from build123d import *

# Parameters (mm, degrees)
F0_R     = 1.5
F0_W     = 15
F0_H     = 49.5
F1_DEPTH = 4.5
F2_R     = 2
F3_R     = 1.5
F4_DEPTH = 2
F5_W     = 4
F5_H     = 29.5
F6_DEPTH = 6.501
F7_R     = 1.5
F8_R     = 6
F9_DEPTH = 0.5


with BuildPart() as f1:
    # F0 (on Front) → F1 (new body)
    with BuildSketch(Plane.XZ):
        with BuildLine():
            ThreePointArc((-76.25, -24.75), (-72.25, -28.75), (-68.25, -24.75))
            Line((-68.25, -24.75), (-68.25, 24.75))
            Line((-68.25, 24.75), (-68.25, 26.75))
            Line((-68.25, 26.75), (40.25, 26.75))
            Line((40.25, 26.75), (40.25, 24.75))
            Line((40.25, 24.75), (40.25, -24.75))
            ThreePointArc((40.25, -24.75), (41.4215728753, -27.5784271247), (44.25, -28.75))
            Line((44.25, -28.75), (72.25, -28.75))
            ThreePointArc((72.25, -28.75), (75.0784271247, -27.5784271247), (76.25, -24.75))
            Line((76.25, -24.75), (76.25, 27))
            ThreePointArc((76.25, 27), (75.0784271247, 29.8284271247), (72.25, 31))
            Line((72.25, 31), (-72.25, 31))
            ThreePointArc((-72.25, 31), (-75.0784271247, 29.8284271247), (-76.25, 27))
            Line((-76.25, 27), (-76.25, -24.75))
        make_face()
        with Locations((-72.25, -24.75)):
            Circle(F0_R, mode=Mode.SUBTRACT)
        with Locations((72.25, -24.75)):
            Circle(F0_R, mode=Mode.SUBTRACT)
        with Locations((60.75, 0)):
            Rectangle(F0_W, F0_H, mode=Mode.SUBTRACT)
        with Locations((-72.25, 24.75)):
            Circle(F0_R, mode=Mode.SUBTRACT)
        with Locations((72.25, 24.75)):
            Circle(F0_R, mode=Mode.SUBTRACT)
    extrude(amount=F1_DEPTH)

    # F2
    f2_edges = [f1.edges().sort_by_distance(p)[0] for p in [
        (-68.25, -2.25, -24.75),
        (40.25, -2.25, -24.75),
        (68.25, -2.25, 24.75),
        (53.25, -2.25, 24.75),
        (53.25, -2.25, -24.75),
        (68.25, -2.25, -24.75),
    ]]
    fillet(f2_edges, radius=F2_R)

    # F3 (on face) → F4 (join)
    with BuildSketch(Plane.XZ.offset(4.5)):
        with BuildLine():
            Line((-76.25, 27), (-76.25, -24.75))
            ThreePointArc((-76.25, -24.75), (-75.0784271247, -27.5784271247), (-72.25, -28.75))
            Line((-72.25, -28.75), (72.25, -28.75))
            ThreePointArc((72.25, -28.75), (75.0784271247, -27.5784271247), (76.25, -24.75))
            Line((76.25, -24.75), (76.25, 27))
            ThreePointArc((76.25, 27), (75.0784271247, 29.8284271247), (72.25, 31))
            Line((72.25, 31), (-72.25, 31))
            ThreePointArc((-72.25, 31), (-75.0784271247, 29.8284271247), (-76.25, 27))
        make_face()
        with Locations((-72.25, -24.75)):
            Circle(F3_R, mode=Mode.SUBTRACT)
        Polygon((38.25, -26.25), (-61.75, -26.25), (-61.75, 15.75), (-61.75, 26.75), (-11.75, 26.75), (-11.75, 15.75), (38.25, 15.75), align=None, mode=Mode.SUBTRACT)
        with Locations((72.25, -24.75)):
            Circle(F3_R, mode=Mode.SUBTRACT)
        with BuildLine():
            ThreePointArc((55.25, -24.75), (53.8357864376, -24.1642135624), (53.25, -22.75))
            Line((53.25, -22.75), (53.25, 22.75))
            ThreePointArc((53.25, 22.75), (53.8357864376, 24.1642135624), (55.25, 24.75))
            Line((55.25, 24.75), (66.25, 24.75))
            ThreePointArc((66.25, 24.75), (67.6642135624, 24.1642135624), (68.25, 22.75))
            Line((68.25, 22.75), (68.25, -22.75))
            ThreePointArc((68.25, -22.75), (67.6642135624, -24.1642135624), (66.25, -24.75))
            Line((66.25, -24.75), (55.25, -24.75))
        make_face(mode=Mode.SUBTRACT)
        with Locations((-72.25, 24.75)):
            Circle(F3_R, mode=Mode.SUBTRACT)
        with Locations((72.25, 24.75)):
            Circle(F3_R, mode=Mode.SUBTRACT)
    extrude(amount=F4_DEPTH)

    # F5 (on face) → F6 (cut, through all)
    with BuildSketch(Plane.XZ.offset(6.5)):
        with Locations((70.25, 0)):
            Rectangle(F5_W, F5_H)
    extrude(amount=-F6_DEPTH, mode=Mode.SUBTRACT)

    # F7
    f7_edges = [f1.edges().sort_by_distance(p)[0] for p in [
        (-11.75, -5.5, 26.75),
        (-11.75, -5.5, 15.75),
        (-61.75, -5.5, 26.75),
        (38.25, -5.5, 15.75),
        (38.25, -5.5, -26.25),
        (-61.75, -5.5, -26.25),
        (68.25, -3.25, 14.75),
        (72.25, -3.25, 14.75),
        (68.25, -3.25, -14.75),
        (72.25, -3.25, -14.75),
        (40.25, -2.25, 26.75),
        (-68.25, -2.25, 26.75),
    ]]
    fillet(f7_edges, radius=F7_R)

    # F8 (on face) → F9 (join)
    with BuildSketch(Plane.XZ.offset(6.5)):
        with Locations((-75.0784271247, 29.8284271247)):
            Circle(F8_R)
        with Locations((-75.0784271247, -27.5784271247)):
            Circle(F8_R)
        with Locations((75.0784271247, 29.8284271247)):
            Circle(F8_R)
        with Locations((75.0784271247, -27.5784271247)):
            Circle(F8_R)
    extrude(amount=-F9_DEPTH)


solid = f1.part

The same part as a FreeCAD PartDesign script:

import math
import FreeCAD as App
import Part
import Sketcher
from FreeCAD import Vector
Q = App.Units.Quantity


def edges_at(feature, points):
    """Names of the edges that pass closest to the given points."""
    edges = feature.Shape.Edges
    near = lambda p: min(range(len(edges)), key=lambda i: edges[i].distToShape(Part.Vertex(*p))[0])
    return sorted({f"Edge{near(p) + 1}" for p in points})


def add_polygon(sketch, points):
    """Adds a closed chain of lines whose ends are joined by coincident constraints."""
    first, n = sketch.GeometryCount, len(points)
    for a, b in zip(points, points[1:] + points[:1]):
        sketch.addGeometry(Part.LineSegment(App.Vector(*a, 0), App.Vector(*b, 0)), False)
    for i in range(n):
        sketch.addConstraint(Sketcher.Constraint("Coincident", first + i, 2, first + (i + 1) % n, 1))

doc = App.newDocument("Part")
body = doc.addObject("PartDesign::Body", "Body")

# Sketch on XZ plane
sketch1 = doc.addObject("Sketcher::SketchObject", "Sketch")
body.addObject(sketch1)
sketch1.AttachmentSupport = (doc.XZ_Plane, [""])
sketch1.MapMode = "FlatFace"
sketch1.addGeometry(Part.ArcOfCircle(Part.Circle(Vector(-72.2, -24.8, 0), Vector(0, 0, 1), 4), math.radians(180), math.radians(360)), False)  # 0
sketch1.addGeometry(Part.LineSegment(Vector(-68.2, -24.8, 0), Vector(-68.2, 26.8, 0)), False)  # 1
sketch1.addGeometry(Part.LineSegment(Vector(-68.2, 26.8, 0), Vector(40.2, 26.8, 0)), False)  # 2
sketch1.addGeometry(Part.LineSegment(Vector(40.2, 26.8, 0), Vector(40.2, -24.8, 0)), False)  # 3
sketch1.addGeometry(Part.ArcOfCircle(Part.Circle(Vector(44.2, -24.8, 0), Vector(0, 0, 1), 4), math.radians(180), math.radians(270)), False)  # 4
sketch1.addGeometry(Part.LineSegment(Vector(44.2, -28.8, 0), Vector(72.2, -28.8, 0)), False)  # 5
sketch1.addGeometry(Part.ArcOfCircle(Part.Circle(Vector(72.2, -24.8, 0), Vector(0, 0, 1), 4), math.radians(-90), math.radians(0)), False)  # 6
sketch1.addGeometry(Part.LineSegment(Vector(76.2, -24.8, 0), Vector(76.2, 27, 0)), False)  # 7
sketch1.addGeometry(Part.ArcOfCircle(Part.Circle(Vector(72.2, 27, 0), Vector(0, 0, 1), 4), math.radians(0), math.radians(90)), False)  # 8
sketch1.addGeometry(Part.LineSegment(Vector(72.2, 31, 0), Vector(-72.2, 31, 0)), False)  # 9
sketch1.addGeometry(Part.ArcOfCircle(Part.Circle(Vector(-72.2, 27, 0), Vector(0, 0, 1), 4), math.radians(90), math.radians(180)), False)  # 10
sketch1.addGeometry(Part.LineSegment(Vector(-76.2, 27, 0), Vector(-76.2, -24.8, 0)), False)  # 11
sketch1.addGeometry(Part.Circle(Vector(-72.2, -24.8, 0), Vector(0, 0, 1), 1.5), False)  # 12
sketch1.addGeometry(Part.Circle(Vector(72.2, -24.8, 0), Vector(0, 0, 1), 1.5), False)  # 13
sketch1.addGeometry(Part.Circle(Vector(-72.2, 24.8, 0), Vector(0, 0, 1), 1.5), False)  # 14
add_polygon(sketch1, [(68.2, -24.8), (53.2, -24.8), (53.2, 24.8), (68.2, 24.8)])  # lines 15-18
sketch1.addGeometry(Part.Circle(Vector(72.2, 24.8, 0), Vector(0, 0, 1), 1.5), False)  # 19
sketch1.addConstraint(Sketcher.Constraint("Tangent", 0, 2, 1, 1))
sketch1.addConstraint(Sketcher.Constraint("Coincident", 1, 2, 2, 1))
sketch1.addConstraint(Sketcher.Constraint("Coincident", 2, 2, 3, 1))
sketch1.addConstraint(Sketcher.Constraint("Tangent", 3, 2, 4, 1))
sketch1.addConstraint(Sketcher.Constraint("Tangent", 4, 2, 5, 1))
sketch1.addConstraint(Sketcher.Constraint("Tangent", 5, 2, 6, 1))
sketch1.addConstraint(Sketcher.Constraint("Tangent", 6, 2, 7, 1))
sketch1.addConstraint(Sketcher.Constraint("Tangent", 7, 2, 8, 1))
sketch1.addConstraint(Sketcher.Constraint("Tangent", 8, 2, 9, 1))
sketch1.addConstraint(Sketcher.Constraint("Tangent", 9, 2, 10, 1))
sketch1.addConstraint(Sketcher.Constraint("Tangent", 10, 2, 11, 1))
sketch1.addConstraint(Sketcher.Constraint("Tangent", 11, 2, 0, 1))
sketch1.addConstraint(Sketcher.Constraint("Vertical", 1))
sketch1.addConstraint(Sketcher.Constraint("Horizontal", 2))
sketch1.addConstraint(Sketcher.Constraint("Vertical", 3))
sketch1.addConstraint(Sketcher.Constraint("Horizontal", 5))
sketch1.addConstraint(Sketcher.Constraint("Vertical", 7))
sketch1.addConstraint(Sketcher.Constraint("Horizontal", 9))
sketch1.addConstraint(Sketcher.Constraint("Vertical", 11))
sketch1.addConstraint(Sketcher.Constraint("Horizontal", 15))
sketch1.addConstraint(Sketcher.Constraint("Vertical", 16))
sketch1.addConstraint(Sketcher.Constraint("Horizontal", 17))
sketch1.addConstraint(Sketcher.Constraint("Vertical", 18))
sketch1.addConstraint(Sketcher.Constraint("Coincident", 12, 3, 0, 3))
sketch1.addConstraint(Sketcher.Constraint("Coincident", 13, 3, 6, 3))
sketch1.addConstraint(Sketcher.Constraint("Equal", 0, 4))
sketch1.addConstraint(Sketcher.Constraint("Equal", 4, 6))
sketch1.addConstraint(Sketcher.Constraint("Equal", 6, 8))
sketch1.addConstraint(Sketcher.Constraint("Equal", 8, 10))
sketch1.addConstraint(Sketcher.Constraint("Equal", 12, 13))
sketch1.addConstraint(Sketcher.Constraint("Equal", 13, 14))
sketch1.addConstraint(Sketcher.Constraint("Equal", 14, 19))
sketch1.addConstraint(Sketcher.Constraint("Symmetric", 6, 3, 14, 3, -1, 1))
sketch1.addConstraint(Sketcher.Constraint("Symmetric", 0, 3, 19, 3, -1, 1))
sketch1.addConstraint(Sketcher.Constraint("Symmetric", 0, 2, 17, 2, -1, 1))
sketch1.addConstraint(Sketcher.Constraint("Symmetric", 0, 3, 6, 3, -2))
sketch1.addConstraint(Sketcher.Constraint("Horizontal", 11, 2, 15, 2))
sketch1.addConstraint(Sketcher.Constraint("Diameter", 12, Q("3 mm")))
sketch1.addConstraint(Sketcher.Constraint("Radius", 0, Q("4 mm")))
sketch1.addConstraint(Sketcher.Constraint("DistanceX", 5, 1, 5, 2, Q("28 mm")))
sketch1.addConstraint(Sketcher.Constraint("DistanceX", 15, 2, 15, 1, Q("15 mm")))
sketch1.addConstraint(Sketcher.Constraint("DistanceX", 2, 1, 2, 2, Q("108.5 mm")))
sketch1.addConstraint(Sketcher.Constraint("DistanceY", 1, 1, 1, 2, Q("51.5 mm")))
sketch1.addConstraint(Sketcher.Constraint("DistanceY", 16, 1, 16, 2, Q("49.5 mm")))
sketch1.addConstraint(Sketcher.Constraint("DistanceY", -1, 1, 8, 3, Q("27 mm")))
pad1 = doc.addObject("PartDesign::Pad", "Pad")
body.addObject(pad1)
pad1.Profile = sketch1
pad1.Length = 4.5
doc.recompute()

fillet = doc.addObject("PartDesign::Fillet", "Fillet")
body.addObject(fillet)
fillet.Base = (pad1, edges_at(pad1, [
    (-68.25, -2.25, -24.75),
    (40.25, -2.25, -24.75),
    (68.25, -2.25, 24.75),
    (53.25, -2.25, 24.75),
    (53.25, -2.25, -24.75),
    (68.25, -2.25, -24.75),
]))
fillet.Radius = 2

# Sketch on XZ plane
sketch2 = doc.addObject("Sketcher::SketchObject", "Sketch001")
body.addObject(sketch2)
sketch2.AttachmentSupport = (doc.XZ_Plane, [""])
sketch2.MapMode = "FlatFace"
sketch2.AttachmentOffset = App.Placement(Vector(0, 0, 4.5), App.Rotation())
sketch2.addGeometry(Part.LineSegment(Vector(-76.2, 27, 0), Vector(-76.2, -24.8, 0)), False)  # 0
sketch2.addGeometry(Part.ArcOfCircle(Part.Circle(Vector(-72.2, -24.8, 0), Vector(0, 0, 1), 4), math.radians(180), math.radians(270)), False)  # 1
sketch2.addGeometry(Part.LineSegment(Vector(-72.2, -28.8, 0), Vector(72.2, -28.8, 0)), False)  # 2
sketch2.addGeometry(Part.ArcOfCircle(Part.Circle(Vector(72.2, -24.8, 0), Vector(0, 0, 1), 4), math.radians(-90), math.radians(0)), False)  # 3
sketch2.addGeometry(Part.LineSegment(Vector(76.2, -24.8, 0), Vector(76.2, 27, 0)), False)  # 4
sketch2.addGeometry(Part.ArcOfCircle(Part.Circle(Vector(72.2, 27, 0), Vector(0, 0, 1), 4), math.radians(0), math.radians(90)), False)  # 5
sketch2.addGeometry(Part.LineSegment(Vector(72.2, 31, 0), Vector(-72.2, 31, 0)), False)  # 6
sketch2.addGeometry(Part.ArcOfCircle(Part.Circle(Vector(-72.2, 27, 0), Vector(0, 0, 1), 4), math.radians(90), math.radians(180)), False)  # 7
sketch2.addGeometry(Part.Circle(Vector(-72.2, -24.8, 0), Vector(0, 0, 1), 1.5), False)  # 8
sketch2.addGeometry(Part.Circle(Vector(72.2, -24.8, 0), Vector(0, 0, 1), 1.5), False)  # 9
sketch2.addGeometry(Part.LineSegment(Vector(66.2, -24.8, 0), Vector(55.2, -24.8, 0)), False)  # 10
sketch2.addGeometry(Part.ArcOfCircle(Part.Circle(Vector(55.2, -22.8, 0), Vector(0, 0, 1), 2), math.radians(180), math.radians(270)), False)  # 11
sketch2.addGeometry(Part.LineSegment(Vector(53.2, -22.8, 0), Vector(53.2, 22.8, 0)), False)  # 12
sketch2.addGeometry(Part.ArcOfCircle(Part.Circle(Vector(55.2, 22.8, 0), Vector(0, 0, 1), 2), math.radians(90), math.radians(180)), False)  # 13
sketch2.addGeometry(Part.LineSegment(Vector(55.2, 24.8, 0), Vector(66.2, 24.8, 0)), False)  # 14
sketch2.addGeometry(Part.ArcOfCircle(Part.Circle(Vector(66.2, 22.8, 0), Vector(0, 0, 1), 2), math.radians(0), math.radians(90)), False)  # 15
sketch2.addGeometry(Part.LineSegment(Vector(68.2, 22.8, 0), Vector(68.2, -22.8, 0)), False)  # 16
sketch2.addGeometry(Part.ArcOfCircle(Part.Circle(Vector(66.2, -22.8, 0), Vector(0, 0, 1), 2), math.radians(-90), math.radians(0)), False)  # 17
add_polygon(sketch2, [(38.2, 15.8), (38.2, -26.2), (-61.8, -26.2), (-61.8, 26.8), (-11.8, 26.8), (-11.8, 15.8)])  # lines 18-23
sketch2.addGeometry(Part.Circle(Vector(-72.2, 24.8, 0), Vector(0, 0, 1), 1.5), False)  # 24
sketch2.addGeometry(Part.Circle(Vector(72.2, 24.8, 0), Vector(0, 0, 1), 1.5), False)  # 25
sketch2.addConstraint(Sketcher.Constraint("Tangent", 0, 2, 1, 1))
sketch2.addConstraint(Sketcher.Constraint("Tangent", 1, 2, 2, 1))
sketch2.addConstraint(Sketcher.Constraint("Tangent", 2, 2, 3, 1))
sketch2.addConstraint(Sketcher.Constraint("Tangent", 3, 2, 4, 1))
sketch2.addConstraint(Sketcher.Constraint("Tangent", 4, 2, 5, 1))
sketch2.addConstraint(Sketcher.Constraint("Tangent", 5, 2, 6, 1))
sketch2.addConstraint(Sketcher.Constraint("Tangent", 6, 2, 7, 1))
sketch2.addConstraint(Sketcher.Constraint("Tangent", 7, 2, 0, 1))
sketch2.addConstraint(Sketcher.Constraint("Tangent", 10, 2, 11, 2))
sketch2.addConstraint(Sketcher.Constraint("Tangent", 11, 1, 12, 1))
sketch2.addConstraint(Sketcher.Constraint("Tangent", 12, 2, 13, 2))
sketch2.addConstraint(Sketcher.Constraint("Tangent", 13, 1, 14, 1))
sketch2.addConstraint(Sketcher.Constraint("Tangent", 14, 2, 15, 2))
sketch2.addConstraint(Sketcher.Constraint("Tangent", 15, 1, 16, 1))
sketch2.addConstraint(Sketcher.Constraint("Tangent", 16, 2, 17, 2))
sketch2.addConstraint(Sketcher.Constraint("Tangent", 17, 1, 10, 1))
sketch2.addConstraint(Sketcher.Constraint("Vertical", 0))
sketch2.addConstraint(Sketcher.Constraint("Horizontal", 2))
sketch2.addConstraint(Sketcher.Constraint("Vertical", 4))
sketch2.addConstraint(Sketcher.Constraint("Horizontal", 6))
sketch2.addConstraint(Sketcher.Constraint("Horizontal", 10))
sketch2.addConstraint(Sketcher.Constraint("Vertical", 12))
sketch2.addConstraint(Sketcher.Constraint("Horizontal", 14))
sketch2.addConstraint(Sketcher.Constraint("Vertical", 16))
sketch2.addConstraint(Sketcher.Constraint("Vertical", 18))
sketch2.addConstraint(Sketcher.Constraint("Horizontal", 19))
sketch2.addConstraint(Sketcher.Constraint("Vertical", 20))
sketch2.addConstraint(Sketcher.Constraint("Horizontal", 21))
sketch2.addConstraint(Sketcher.Constraint("Vertical", 22))
sketch2.addConstraint(Sketcher.Constraint("Horizontal", 23))
sketch2.addConstraint(Sketcher.Constraint("Coincident", 8, 3, 1, 3))
sketch2.addConstraint(Sketcher.Constraint("Coincident", 9, 3, 3, 3))
sketch2.addConstraint(Sketcher.Constraint("Equal", 1, 3))
sketch2.addConstraint(Sketcher.Constraint("Equal", 3, 5))
sketch2.addConstraint(Sketcher.Constraint("Equal", 5, 7))
sketch2.addConstraint(Sketcher.Constraint("Equal", 8, 9))
sketch2.addConstraint(Sketcher.Constraint("Equal", 11, 13))
sketch2.addConstraint(Sketcher.Constraint("Equal", 13, 15))
sketch2.addConstraint(Sketcher.Constraint("Equal", 15, 17))
sketch2.addConstraint(Sketcher.Constraint("Equal", 9, 24))
sketch2.addConstraint(Sketcher.Constraint("Equal", 24, 25))
sketch2.addConstraint(Sketcher.Constraint("Symmetric", 3, 3, 24, 3, -1, 1))
sketch2.addConstraint(Sketcher.Constraint("Symmetric", 1, 3, 25, 3, -1, 1))
sketch2.addConstraint(Sketcher.Constraint("Horizontal", 3, 2, 10, 2))
sketch2.addConstraint(Sketcher.Constraint("Horizontal", 25, 3, 13, 1))
sketch2.addConstraint(Sketcher.Constraint("Vertical", 8, 3, 24, 3))
sketch2.addConstraint(Sketcher.Constraint("Equal", 21, 23))
sketch2.addConstraint(Sketcher.Constraint("Equal", 14, 22))
sketch2.addConstraint(Sketcher.Constraint("Diameter", 8, Q("3 mm")))
sketch2.addConstraint(Sketcher.Constraint("Radius", 1, Q("4 mm")))
sketch2.addConstraint(Sketcher.Constraint("Radius", 11, Q("2 mm")))
sketch2.addConstraint(Sketcher.Constraint("DistanceX", 10, 2, 10, 1, Q("11 mm")))
sketch2.addConstraint(Sketcher.Constraint("DistanceX", 19, 2, 19, 1, Q("100 mm")))
sketch2.addConstraint(Sketcher.Constraint("DistanceY", 18, 2, 18, 1, Q("42 mm")))
sketch2.addConstraint(Sketcher.Constraint("DistanceX", 2, 1, 2, 2, Q("144.5 mm")))
sketch2.addConstraint(Sketcher.Constraint("DistanceY", 12, 1, 12, 2, Q("45.5 mm")))
sketch2.addConstraint(Sketcher.Constraint("DistanceY", -1, 1, 5, 3, Q("27 mm")))
sketch2.addConstraint(Sketcher.Constraint("DistanceX", 11, 3, 3, 3, Q("17 mm")))
sketch2.addConstraint(Sketcher.Constraint("DistanceX", 18, 2, 11, 1, Q("15 mm")))
sketch2.addConstraint(Sketcher.Constraint("DistanceY", 19, 2, 24, 3, Q("51 mm")))
pad2 = doc.addObject("PartDesign::Pad", "Pad001")
body.addObject(pad2)
pad2.Profile = sketch2
pad2.Length = 2

# Sketch on XZ plane
sketch3 = doc.addObject("Sketcher::SketchObject", "Sketch002")
body.addObject(sketch3)
sketch3.AttachmentSupport = (doc.XZ_Plane, [""])
sketch3.MapMode = "FlatFace"
sketch3.AttachmentOffset = App.Placement(Vector(0, 0, 6.5), App.Rotation())
add_polygon(sketch3, [(68.2, 14.8), (68.2, -14.8), (72.2, -14.8), (72.2, 14.8)])  # lines 0-3
sketch3.addConstraint(Sketcher.Constraint("Vertical", 0))
sketch3.addConstraint(Sketcher.Constraint("Horizontal", 1))
sketch3.addConstraint(Sketcher.Constraint("Vertical", 2))
sketch3.addConstraint(Sketcher.Constraint("Horizontal", 3))
sketch3.addConstraint(Sketcher.Constraint("DistanceX", 1, 1, 1, 2, Q("4 mm")))
sketch3.addConstraint(Sketcher.Constraint("DistanceY", 0, 2, 0, 1, Q("29.5 mm")))
sketch3.addConstraint(Sketcher.Constraint("DistanceX", -1, 1, 0, 2, Q("68.25 mm")))
sketch3.addConstraint(Sketcher.Constraint("DistanceY", 0, 2, -1, 1, Q("14.75 mm")))
pocket1 = doc.addObject("PartDesign::Pocket", "Pocket")
body.addObject(pocket1)
pocket1.Profile = sketch3
pocket1.Type = "ThroughAll"
doc.recompute()

fillet2 = doc.addObject("PartDesign::Fillet", "Fillet001")
body.addObject(fillet2)
fillet2.Base = (pocket1, edges_at(pocket1, [
    (-11.75, -5.5, 26.75),
    (-11.75, -5.5, 15.75),
    (-61.75, -5.5, 26.75),
    (38.25, -5.5, 15.75),
    (38.25, -5.5, -26.25),
    (-61.75, -5.5, -26.25),
    (68.25, -3.25, 14.75),
    (72.25, -3.25, 14.75),
    (68.25, -3.25, -14.75),
    (72.25, -3.25, -14.75),
    (40.25, -2.25, 26.75),
    (-68.25, -2.25, 26.75),
]))
fillet2.Radius = 1.5

# Sketch on XZ plane
sketch4 = doc.addObject("Sketcher::SketchObject", "Sketch003")
body.addObject(sketch4)
sketch4.AttachmentSupport = (doc.XZ_Plane, [""])
sketch4.MapMode = "FlatFace"
sketch4.AttachmentOffset = App.Placement(Vector(0, 0, 6.5), App.Rotation())
sketch4.addGeometry(Part.Circle(Vector(-75, 30, 0), Vector(0, 0, 1), 6), False)
sketch4.addGeometry(Part.Circle(Vector(-75, -28, 0), Vector(0, 0, 1), 6), False)
sketch4.addGeometry(Part.Circle(Vector(75, 30, 0), Vector(0, 0, 1), 6), False)
sketch4.addGeometry(Part.Circle(Vector(75, -28, 0), Vector(0, 0, 1), 6), False)
sketch4.addConstraint(Sketcher.Constraint("Equal", 0, 1))
sketch4.addConstraint(Sketcher.Constraint("Equal", 1, 2))
sketch4.addConstraint(Sketcher.Constraint("Equal", 2, 3))
sketch4.addConstraint(Sketcher.Constraint("Symmetric", 0, 3, 2, 3, -2))
sketch4.addConstraint(Sketcher.Constraint("Symmetric", 1, 3, 3, 3, -2))
sketch4.addConstraint(Sketcher.Constraint("Vertical", 0, 3, 1, 3))
sketch4.addConstraint(Sketcher.Constraint("Diameter", 0, Q("12 mm")))
sketch4.addConstraint(Sketcher.Constraint("DistanceX", 0, 3, -1, 1, Q("75.078427 mm")))
sketch4.addConstraint(Sketcher.Constraint("DistanceY", -1, 1, 0, 3, Q("29.828427 mm")))
sketch4.addConstraint(Sketcher.Constraint("DistanceY", 1, 3, -1, 1, Q("27.578427 mm")))
pad3 = doc.addObject("PartDesign::Pad", "Pad002")
body.addObject(pad3)
pad3.Profile = sketch4
pad3.Length = 0.5
pad3.Reversed = True

doc.recompute()
